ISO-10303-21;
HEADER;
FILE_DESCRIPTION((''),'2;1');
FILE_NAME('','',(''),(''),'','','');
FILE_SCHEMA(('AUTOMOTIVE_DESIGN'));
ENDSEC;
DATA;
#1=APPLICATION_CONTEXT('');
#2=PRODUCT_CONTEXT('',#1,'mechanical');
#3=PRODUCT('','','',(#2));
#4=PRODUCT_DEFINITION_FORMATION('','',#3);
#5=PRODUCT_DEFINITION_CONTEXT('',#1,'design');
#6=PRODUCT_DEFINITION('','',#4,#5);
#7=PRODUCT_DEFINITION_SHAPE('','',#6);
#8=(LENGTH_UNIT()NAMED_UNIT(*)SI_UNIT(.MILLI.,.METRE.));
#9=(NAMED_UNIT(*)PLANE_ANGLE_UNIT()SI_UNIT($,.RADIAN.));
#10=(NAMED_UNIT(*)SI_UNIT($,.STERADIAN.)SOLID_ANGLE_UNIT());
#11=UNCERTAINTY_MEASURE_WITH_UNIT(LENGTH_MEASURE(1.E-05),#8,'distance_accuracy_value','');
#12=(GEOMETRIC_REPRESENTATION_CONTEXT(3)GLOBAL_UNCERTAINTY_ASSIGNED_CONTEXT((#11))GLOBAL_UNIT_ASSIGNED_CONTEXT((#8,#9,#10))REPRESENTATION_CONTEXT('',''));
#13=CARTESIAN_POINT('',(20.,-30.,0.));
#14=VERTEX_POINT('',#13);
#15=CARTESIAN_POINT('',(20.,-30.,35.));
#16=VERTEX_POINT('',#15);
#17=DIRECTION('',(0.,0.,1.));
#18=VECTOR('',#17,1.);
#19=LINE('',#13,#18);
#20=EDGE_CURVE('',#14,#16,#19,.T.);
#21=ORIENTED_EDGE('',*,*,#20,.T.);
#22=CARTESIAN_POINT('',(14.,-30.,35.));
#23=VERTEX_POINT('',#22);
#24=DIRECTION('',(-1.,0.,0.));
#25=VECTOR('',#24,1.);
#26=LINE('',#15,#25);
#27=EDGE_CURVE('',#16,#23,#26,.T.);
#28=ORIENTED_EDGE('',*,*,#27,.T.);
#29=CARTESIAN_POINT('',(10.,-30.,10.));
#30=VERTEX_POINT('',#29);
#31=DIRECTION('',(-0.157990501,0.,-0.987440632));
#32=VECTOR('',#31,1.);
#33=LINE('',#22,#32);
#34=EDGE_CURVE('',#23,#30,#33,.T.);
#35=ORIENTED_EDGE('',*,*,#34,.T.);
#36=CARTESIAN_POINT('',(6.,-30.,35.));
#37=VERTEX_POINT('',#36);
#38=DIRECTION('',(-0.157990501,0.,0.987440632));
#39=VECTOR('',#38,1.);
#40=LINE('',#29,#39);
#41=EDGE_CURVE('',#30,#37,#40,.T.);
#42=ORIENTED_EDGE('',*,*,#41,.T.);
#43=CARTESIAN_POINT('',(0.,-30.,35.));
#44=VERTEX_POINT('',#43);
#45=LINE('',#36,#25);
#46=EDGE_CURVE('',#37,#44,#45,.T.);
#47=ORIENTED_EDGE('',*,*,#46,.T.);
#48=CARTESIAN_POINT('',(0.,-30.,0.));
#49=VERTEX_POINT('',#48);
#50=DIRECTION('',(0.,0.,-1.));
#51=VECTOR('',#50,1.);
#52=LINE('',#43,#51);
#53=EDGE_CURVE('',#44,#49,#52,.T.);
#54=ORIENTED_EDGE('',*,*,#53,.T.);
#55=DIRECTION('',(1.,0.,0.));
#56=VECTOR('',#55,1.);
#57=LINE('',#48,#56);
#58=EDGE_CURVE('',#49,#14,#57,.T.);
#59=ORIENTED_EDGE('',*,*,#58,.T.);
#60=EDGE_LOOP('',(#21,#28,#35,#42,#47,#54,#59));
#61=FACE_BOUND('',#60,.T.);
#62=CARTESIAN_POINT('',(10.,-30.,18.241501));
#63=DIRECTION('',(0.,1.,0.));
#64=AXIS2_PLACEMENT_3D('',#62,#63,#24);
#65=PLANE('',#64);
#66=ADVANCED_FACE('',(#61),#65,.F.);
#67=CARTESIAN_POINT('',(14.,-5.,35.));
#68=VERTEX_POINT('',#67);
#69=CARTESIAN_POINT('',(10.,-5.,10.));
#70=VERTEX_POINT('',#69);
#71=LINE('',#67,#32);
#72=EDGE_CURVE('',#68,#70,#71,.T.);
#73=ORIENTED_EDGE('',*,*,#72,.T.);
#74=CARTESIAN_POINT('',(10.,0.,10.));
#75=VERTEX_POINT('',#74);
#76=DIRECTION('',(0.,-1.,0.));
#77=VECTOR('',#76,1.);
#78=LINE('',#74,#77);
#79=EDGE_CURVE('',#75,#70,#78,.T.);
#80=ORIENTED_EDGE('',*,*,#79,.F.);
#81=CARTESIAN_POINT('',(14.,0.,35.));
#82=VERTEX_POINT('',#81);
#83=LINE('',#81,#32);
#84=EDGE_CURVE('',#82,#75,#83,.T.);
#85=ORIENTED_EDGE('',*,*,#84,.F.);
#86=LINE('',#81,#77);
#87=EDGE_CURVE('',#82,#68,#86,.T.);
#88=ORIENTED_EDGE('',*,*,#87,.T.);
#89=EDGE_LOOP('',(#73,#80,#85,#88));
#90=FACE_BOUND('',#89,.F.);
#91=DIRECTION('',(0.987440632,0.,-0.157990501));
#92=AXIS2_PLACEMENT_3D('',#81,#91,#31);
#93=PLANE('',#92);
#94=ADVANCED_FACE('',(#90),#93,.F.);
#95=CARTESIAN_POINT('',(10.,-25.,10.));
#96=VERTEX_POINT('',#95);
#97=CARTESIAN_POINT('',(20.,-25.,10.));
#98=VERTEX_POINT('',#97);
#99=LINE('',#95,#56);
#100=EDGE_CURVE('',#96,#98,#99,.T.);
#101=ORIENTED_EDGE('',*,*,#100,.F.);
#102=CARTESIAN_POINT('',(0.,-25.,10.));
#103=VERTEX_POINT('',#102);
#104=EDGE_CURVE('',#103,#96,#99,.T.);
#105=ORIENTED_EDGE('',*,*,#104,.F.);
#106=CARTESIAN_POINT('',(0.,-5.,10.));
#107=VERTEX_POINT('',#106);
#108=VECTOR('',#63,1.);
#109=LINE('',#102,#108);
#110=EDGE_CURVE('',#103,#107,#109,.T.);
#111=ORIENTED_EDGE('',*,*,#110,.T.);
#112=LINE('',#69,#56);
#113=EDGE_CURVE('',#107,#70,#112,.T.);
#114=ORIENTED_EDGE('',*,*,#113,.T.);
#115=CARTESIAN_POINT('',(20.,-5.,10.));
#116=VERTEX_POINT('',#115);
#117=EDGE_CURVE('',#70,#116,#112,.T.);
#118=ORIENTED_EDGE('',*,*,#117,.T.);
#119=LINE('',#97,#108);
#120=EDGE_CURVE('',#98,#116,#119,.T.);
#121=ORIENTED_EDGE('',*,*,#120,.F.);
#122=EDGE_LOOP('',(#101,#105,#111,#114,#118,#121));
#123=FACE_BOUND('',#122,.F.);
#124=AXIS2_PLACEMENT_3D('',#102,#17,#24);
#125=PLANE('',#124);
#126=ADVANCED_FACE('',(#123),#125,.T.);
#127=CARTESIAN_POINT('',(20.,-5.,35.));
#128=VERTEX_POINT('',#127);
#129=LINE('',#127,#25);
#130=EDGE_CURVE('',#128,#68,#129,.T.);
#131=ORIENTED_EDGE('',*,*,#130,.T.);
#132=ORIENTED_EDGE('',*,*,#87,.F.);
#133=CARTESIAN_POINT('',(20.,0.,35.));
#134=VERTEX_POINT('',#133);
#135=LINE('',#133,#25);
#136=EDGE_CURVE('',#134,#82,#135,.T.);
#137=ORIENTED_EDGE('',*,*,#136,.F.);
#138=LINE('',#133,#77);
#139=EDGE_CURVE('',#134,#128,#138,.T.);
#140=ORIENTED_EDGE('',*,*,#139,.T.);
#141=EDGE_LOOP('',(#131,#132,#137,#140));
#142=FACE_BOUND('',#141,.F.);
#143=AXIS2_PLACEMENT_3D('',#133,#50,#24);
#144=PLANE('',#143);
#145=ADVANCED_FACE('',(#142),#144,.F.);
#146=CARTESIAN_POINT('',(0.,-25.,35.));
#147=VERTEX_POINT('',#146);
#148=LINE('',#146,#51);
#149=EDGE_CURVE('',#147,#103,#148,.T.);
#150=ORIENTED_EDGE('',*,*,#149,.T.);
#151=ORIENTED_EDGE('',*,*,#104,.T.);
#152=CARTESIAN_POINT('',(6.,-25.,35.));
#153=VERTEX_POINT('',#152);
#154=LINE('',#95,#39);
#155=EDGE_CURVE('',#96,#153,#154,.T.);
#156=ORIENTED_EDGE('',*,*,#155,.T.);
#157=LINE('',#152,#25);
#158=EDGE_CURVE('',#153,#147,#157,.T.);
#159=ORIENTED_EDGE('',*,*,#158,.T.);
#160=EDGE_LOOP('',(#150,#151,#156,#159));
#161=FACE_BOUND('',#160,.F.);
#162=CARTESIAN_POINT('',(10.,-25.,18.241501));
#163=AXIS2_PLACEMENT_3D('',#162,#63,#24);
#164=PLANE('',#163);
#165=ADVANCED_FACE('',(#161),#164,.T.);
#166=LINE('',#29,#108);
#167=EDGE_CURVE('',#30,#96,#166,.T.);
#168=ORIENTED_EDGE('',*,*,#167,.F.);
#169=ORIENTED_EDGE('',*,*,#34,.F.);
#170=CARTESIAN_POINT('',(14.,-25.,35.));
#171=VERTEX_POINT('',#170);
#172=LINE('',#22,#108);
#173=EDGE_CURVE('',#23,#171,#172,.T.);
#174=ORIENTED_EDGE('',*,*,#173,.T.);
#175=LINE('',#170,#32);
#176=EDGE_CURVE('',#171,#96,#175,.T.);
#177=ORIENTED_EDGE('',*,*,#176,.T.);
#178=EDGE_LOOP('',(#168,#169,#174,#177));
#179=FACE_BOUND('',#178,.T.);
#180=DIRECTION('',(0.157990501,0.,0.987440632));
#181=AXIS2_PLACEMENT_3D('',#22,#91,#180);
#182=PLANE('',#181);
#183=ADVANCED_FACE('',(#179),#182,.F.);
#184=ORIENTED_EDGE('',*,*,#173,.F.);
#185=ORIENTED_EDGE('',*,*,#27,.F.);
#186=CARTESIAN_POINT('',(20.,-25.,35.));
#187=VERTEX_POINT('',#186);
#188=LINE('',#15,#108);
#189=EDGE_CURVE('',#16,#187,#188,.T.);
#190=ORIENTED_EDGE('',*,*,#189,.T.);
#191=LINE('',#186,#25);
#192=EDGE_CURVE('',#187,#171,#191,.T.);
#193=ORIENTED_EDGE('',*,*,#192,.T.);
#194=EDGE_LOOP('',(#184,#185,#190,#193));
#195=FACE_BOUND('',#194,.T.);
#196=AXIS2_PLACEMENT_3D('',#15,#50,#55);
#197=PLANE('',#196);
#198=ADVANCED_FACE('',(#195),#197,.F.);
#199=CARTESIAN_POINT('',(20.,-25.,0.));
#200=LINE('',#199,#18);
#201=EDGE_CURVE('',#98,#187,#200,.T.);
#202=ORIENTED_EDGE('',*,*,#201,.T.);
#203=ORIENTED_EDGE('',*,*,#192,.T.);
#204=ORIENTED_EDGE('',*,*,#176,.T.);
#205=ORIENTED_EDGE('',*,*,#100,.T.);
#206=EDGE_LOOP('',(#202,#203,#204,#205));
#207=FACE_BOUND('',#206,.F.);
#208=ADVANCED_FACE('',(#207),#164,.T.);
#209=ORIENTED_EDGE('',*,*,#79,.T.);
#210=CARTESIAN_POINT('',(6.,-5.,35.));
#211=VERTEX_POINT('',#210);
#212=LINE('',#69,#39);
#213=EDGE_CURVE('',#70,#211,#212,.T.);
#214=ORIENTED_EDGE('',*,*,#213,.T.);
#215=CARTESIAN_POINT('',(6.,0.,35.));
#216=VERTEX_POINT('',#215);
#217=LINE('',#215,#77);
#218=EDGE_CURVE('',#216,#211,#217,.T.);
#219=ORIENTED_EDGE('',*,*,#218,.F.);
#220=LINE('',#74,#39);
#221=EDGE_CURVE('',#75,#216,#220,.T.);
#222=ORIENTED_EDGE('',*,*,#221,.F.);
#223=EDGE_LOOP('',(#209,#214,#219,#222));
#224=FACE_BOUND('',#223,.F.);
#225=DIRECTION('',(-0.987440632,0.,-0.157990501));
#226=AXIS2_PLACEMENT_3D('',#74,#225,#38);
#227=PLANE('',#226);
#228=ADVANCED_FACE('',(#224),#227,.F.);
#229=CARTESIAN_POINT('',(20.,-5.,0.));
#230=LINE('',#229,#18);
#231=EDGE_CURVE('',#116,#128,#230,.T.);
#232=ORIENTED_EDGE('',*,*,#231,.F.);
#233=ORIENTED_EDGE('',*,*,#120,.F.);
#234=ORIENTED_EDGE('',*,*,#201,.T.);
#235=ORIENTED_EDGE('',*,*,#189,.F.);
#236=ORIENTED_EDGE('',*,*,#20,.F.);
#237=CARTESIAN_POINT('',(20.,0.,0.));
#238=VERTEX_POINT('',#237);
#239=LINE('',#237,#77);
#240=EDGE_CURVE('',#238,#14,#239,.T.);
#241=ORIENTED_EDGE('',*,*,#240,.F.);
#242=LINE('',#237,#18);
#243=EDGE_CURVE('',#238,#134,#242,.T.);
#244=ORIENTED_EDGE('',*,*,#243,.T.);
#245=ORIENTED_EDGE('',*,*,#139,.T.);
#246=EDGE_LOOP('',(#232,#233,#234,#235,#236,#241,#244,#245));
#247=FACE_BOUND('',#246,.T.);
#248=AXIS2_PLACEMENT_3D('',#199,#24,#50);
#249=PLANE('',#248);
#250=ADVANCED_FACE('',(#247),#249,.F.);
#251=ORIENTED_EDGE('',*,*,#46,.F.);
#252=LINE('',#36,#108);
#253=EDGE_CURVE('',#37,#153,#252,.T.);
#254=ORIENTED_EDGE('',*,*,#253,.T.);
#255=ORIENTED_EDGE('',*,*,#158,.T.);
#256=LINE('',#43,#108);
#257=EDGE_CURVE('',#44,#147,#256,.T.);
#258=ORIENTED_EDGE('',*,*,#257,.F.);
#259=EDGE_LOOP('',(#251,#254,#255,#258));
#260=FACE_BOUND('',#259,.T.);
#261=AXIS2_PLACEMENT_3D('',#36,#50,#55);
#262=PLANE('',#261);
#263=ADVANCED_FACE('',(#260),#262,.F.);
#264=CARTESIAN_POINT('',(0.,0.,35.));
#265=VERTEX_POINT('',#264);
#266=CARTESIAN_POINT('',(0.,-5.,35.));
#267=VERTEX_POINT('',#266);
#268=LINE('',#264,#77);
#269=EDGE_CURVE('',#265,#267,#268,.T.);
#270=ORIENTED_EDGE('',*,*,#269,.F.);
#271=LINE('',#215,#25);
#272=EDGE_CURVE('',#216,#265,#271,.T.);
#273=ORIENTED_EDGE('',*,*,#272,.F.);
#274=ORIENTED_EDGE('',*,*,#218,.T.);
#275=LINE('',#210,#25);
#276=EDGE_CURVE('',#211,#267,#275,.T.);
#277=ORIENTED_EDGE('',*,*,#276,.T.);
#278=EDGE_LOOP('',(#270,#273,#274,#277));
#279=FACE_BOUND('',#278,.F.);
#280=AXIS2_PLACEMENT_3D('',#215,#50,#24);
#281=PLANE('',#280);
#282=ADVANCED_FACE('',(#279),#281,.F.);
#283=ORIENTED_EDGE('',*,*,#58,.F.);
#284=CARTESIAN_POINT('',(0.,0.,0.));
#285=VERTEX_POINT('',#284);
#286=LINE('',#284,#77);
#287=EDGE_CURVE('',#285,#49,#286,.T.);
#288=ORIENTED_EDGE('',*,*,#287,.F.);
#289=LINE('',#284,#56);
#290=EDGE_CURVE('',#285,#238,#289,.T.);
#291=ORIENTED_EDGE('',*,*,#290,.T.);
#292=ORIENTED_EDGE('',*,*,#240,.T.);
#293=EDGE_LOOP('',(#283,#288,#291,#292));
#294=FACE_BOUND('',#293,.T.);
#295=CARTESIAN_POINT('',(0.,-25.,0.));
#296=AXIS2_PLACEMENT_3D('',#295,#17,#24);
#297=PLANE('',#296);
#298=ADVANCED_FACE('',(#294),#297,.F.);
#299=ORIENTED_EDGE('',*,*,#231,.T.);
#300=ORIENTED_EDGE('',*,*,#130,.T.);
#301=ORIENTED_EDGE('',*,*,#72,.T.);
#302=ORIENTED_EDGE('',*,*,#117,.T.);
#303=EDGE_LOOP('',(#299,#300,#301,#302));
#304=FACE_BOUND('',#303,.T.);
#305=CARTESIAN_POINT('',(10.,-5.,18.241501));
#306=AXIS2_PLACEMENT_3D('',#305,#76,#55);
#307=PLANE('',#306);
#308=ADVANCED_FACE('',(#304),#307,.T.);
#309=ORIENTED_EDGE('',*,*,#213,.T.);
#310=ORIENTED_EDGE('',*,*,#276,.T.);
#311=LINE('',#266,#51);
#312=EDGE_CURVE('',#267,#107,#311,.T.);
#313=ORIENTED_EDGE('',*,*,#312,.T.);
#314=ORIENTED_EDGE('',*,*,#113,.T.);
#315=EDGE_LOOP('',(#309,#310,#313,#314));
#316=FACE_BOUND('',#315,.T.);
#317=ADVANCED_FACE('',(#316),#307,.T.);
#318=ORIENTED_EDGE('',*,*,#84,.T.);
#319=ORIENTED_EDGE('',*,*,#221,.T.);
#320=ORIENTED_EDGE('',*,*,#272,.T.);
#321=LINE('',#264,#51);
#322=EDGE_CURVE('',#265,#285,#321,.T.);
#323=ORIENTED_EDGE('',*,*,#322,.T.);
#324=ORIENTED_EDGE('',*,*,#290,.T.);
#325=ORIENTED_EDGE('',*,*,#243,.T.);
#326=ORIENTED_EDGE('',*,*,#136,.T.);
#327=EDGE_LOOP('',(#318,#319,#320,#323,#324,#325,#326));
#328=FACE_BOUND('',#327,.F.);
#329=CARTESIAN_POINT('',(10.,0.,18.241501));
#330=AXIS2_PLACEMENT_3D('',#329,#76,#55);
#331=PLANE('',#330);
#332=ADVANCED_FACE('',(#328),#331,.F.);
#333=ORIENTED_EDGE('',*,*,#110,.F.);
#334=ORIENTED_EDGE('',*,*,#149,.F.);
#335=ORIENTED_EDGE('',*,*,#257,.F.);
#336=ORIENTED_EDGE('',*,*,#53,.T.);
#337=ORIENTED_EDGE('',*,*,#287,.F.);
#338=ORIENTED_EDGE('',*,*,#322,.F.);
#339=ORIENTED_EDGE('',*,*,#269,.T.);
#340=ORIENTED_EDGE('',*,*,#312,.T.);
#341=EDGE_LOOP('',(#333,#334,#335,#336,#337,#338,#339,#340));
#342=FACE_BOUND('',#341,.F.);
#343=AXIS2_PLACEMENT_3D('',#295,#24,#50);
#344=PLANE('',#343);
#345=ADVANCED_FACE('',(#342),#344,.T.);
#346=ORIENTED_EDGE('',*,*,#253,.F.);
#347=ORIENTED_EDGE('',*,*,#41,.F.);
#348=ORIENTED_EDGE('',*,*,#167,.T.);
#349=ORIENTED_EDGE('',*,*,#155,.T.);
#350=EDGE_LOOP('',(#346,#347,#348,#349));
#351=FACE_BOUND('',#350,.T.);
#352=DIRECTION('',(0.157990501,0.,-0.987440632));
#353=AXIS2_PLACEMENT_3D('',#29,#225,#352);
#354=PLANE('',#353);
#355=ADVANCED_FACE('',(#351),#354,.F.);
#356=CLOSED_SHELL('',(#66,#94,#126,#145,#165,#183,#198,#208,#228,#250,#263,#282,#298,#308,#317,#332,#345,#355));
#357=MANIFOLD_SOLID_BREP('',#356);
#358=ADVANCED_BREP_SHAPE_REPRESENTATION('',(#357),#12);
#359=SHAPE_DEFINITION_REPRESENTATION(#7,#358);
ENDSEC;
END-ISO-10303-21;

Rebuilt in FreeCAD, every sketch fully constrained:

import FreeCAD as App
import Part
import Sketcher

V = App.Vector

doc = App.newDocument("Part")
body = doc.addObject("PartDesign::Body", "Body")

# Sketch on XZ plane
sketch1 = doc.addObject("Sketcher::SketchObject", "Sketch")
body.addObject(sketch1)
sketch1.AttachmentSupport = (doc.XZ_Plane, [""])
sketch1.MapMode = "FlatFace"
sketch1.addGeometry([
    Part.LineSegment(V(0, 35, 0), V(0, 0, 0)),  # 0
    Part.LineSegment(V(0, 0, 0), V(20, 0, 0)),  # 1
    Part.LineSegment(V(20, 0, 0), V(20, 35, 0)),  # 2
    Part.LineSegment(V(20, 35, 0), V(14, 35, 0)),  # 3
    Part.LineSegment(V(14, 35, 0), V(10, 10, 0)),  # 4
    Part.LineSegment(V(10, 10, 0), V(6, 35, 0)),  # 5
    Part.LineSegment(V(6, 35, 0), V(0, 35, 0)),  # 6
], False)
sketch1.addConstraint([
    Sketcher.Constraint("Coincident", 0, 2, 1, 1),
    Sketcher.Constraint("Coincident", 1, 2, 2, 1),
    Sketcher.Constraint("Coincident", 2, 2, 3, 1),
    Sketcher.Constraint("Coincident", 3, 2, 4, 1),
    Sketcher.Constraint("Coincident", 4, 2, 5, 1),
    Sketcher.Constraint("Coincident", 5, 2, 6, 1),
    Sketcher.Constraint("Coincident", 6, 2, 0, 1),
    Sketcher.Constraint("Vertical", 0),
    Sketcher.Constraint("Horizontal", 1),
    Sketcher.Constraint("Vertical", 2),
    Sketcher.Constraint("Horizontal", 3),
    Sketcher.Constraint("Horizontal", 6),
    Sketcher.Constraint("Coincident", 0, 2, -1, 1),
    Sketcher.Constraint("Horizontal", 3, 2, 5, 2),
    Sketcher.Constraint("Equal", 3, 6),
    Sketcher.Constraint("Equal", 4, 5),
    Sketcher.Constraint("DistanceX", 1, 1, 1, 2, 20.0),
    Sketcher.Constraint("DistanceX", 3, 2, 3, 1, 6.0),
    Sketcher.Constraint("DistanceY", 0, 2, 0, 1, 35.0),
    Sketcher.Constraint("DistanceY", -1, 1, 4, 2, 10.0),
])
pad1 = doc.addObject("PartDesign::Pad", "Pad")
body.addObject(pad1)
pad1.Profile = sketch1
pad1.Length = 5

# Sketch on XZ plane
sketch2 = doc.addObject("Sketcher::SketchObject", "Sketch001")
body.addObject(sketch2)
sketch2.AttachmentSupport = (doc.XZ_Plane, [""])
sketch2.MapMode = "FlatFace"
sketch2.AttachmentOffset = App.Placement(V(0, 0, 5), App.Rotation())
sketch2.addGeometry([
    Part.LineSegment(V(0, 10, 0), V(0, 0, 0)),
    Part.LineSegment(V(0, 0, 0), V(20, 0, 0)),
    Part.LineSegment(V(20, 0, 0), V(20, 10, 0)),
    Part.LineSegment(V(20, 10, 0), V(0, 10, 0)),
], False)
sketch2.addConstraint([
    Sketcher.Constraint("Coincident", 0, 2, 1, 1),
    Sketcher.Constraint("Coincident", 1, 2, 2, 1),
    Sketcher.Constraint("Coincident", 2, 2, 3, 1),
    Sketcher.Constraint("Coincident", 3, 2, 0, 1),
    Sketcher.Constraint("Vertical", 0),
    Sketcher.Constraint("Horizontal", 1),
    Sketcher.Constraint("Vertical", 2),
    Sketcher.Constraint("Horizontal", 3),
    Sketcher.Constraint("Coincident", 0, 2, -1, 1),
    Sketcher.Constraint("DistanceX", 1, 1, 1, 2, 20.0),
    Sketcher.Constraint("DistanceY", 0, 2, 0, 1, 10.0),
])
pad2 = doc.addObject("PartDesign::Pad", "Pad001")
body.addObject(pad2)
pad2.Profile = sketch2
pad2.Length = 10
body2 = doc.addObject("PartDesign::Body", "Body001")
doc.recompute()

body2.BaseFeature = body
doc.recompute()

mirroring = doc.addObject("Part::Mirroring", "Mirroring")
mirroring.Source = body
mirroring.Base = V(10, -15, 5)
mirroring.Normal = V(0, -1, 0)
body3 = doc.addObject("PartDesign::Body", "Body002")
body3.BaseFeature = mirroring
boolean = doc.addObject("PartDesign::Boolean", "Boolean")
body2.addObject(boolean)
boolean.Type = "Fuse"
boolean.addObjects([body3])
doc.recompute()
mirroring.Visibility = False

doc.recompute()
